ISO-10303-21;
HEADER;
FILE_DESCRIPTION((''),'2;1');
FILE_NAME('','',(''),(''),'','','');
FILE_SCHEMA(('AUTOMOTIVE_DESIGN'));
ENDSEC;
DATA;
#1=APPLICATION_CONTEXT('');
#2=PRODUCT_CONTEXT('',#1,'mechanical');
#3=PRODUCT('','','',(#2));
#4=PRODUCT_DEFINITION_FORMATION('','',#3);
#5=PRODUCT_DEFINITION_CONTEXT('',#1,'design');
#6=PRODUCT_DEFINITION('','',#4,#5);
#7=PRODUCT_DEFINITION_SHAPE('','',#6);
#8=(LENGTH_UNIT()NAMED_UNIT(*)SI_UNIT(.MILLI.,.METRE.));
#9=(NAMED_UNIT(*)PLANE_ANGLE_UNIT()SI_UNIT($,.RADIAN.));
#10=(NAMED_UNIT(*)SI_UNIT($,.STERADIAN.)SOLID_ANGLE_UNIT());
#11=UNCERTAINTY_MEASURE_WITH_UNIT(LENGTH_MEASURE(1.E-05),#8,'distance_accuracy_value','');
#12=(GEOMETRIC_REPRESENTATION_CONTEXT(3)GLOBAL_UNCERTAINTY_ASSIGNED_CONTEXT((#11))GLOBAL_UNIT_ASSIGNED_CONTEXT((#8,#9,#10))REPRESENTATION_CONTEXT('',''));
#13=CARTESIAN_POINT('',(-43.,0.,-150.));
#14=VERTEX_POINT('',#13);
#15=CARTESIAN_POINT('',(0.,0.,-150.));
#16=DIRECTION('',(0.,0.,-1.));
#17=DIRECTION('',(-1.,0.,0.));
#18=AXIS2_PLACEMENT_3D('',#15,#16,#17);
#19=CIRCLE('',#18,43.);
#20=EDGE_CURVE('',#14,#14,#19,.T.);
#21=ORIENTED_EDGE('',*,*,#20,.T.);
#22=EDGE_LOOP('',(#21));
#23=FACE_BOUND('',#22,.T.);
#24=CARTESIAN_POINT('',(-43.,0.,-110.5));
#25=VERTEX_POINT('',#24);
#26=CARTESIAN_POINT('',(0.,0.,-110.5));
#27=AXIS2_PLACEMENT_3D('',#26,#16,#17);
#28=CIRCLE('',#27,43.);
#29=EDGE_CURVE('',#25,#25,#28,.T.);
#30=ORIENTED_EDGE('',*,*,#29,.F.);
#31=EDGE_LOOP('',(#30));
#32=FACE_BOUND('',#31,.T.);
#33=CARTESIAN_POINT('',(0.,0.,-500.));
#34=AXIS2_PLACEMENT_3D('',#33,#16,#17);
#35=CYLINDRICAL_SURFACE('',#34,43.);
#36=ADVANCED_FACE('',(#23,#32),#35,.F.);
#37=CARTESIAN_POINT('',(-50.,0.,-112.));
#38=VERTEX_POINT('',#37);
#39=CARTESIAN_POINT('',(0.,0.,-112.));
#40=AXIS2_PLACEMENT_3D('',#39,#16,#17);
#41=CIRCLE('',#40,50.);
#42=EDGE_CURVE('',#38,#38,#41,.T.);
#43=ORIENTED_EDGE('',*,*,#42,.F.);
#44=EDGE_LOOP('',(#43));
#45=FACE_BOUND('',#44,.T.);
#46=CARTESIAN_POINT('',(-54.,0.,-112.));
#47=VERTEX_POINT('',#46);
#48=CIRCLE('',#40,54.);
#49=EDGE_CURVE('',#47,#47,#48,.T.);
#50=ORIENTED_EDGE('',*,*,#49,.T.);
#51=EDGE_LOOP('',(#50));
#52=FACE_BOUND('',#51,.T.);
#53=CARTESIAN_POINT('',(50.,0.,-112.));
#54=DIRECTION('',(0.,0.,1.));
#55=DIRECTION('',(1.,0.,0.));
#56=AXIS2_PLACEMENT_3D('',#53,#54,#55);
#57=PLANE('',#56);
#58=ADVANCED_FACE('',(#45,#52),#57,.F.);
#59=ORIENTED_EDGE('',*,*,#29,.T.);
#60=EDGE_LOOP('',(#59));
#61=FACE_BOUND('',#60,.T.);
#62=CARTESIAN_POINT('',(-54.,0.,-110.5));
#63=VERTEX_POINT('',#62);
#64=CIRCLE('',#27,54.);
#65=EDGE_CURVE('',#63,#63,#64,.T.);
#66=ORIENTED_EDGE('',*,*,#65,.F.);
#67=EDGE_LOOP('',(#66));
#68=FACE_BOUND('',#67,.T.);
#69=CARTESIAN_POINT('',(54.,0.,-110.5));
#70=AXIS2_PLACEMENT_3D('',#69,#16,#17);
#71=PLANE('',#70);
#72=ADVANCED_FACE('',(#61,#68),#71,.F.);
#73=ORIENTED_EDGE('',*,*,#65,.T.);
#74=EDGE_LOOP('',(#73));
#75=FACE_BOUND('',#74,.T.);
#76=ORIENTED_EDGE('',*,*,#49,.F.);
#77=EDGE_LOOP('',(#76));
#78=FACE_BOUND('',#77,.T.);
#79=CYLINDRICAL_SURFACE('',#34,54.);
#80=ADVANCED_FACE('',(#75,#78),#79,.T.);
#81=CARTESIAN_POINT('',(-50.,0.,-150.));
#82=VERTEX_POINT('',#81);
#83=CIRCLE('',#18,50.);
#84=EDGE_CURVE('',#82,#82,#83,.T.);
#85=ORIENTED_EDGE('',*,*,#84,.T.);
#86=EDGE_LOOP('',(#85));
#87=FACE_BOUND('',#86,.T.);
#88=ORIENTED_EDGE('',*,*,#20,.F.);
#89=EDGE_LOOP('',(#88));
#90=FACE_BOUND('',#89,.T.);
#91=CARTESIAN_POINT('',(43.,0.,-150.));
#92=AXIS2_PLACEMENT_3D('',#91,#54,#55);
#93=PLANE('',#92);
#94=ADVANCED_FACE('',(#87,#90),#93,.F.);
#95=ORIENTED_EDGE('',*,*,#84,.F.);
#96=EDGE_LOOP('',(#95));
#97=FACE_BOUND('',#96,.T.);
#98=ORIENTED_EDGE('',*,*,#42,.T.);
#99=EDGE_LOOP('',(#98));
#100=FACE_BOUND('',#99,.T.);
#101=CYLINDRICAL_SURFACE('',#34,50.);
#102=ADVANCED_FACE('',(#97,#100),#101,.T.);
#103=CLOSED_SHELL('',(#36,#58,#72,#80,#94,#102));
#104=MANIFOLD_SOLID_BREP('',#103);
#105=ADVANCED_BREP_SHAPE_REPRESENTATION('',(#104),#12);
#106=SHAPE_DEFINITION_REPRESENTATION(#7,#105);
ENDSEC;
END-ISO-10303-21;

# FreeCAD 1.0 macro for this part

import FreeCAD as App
import Part
import Sketcher

V = App.Vector
Q = App.Units.Quantity


def add_polygon(sketch, points):
    """Adds a closed chain of lines whose ends are joined by coincident constraints."""
    first, n = sketch.GeometryCount, len(points)
    for a, b in zip(points, points[1:] + points[:1]):
        sketch.addGeometry(Part.LineSegment(App.Vector(*a, 0), App.Vector(*b, 0)), False)
    for i in range(n):
        sketch.addConstraint(Sketcher.Constraint("Coincident", first + i, 2, first + (i + 1) % n, 1))

doc = App.newDocument("Part")
params = doc.addObject("Spreadsheet::Sheet", "Params")
for row, (alias, value) in enumerate([
    ("sketch1_width", "7 mm"),
    ("sketch1_width2", "11 mm"),
    ("sketch1_height", "38 mm"),
    ("sketch1_height2", "39.5 mm"),
    ("revolution_angle", "360 deg"),
], start=1):
    params.set(f"A{row}", alias)
    params.set(f"B{row}", "=" + value)
    params.setAlias(f"B{row}", alias)

body = doc.addObject("PartDesign::Body", "Body")

sketch1 = doc.addObject("Sketcher::SketchObject", "Sketch")
body.addObject(sketch1)
sketch1.AttachmentSupport = (doc.XZ_Plane, [""])
sketch1.MapMode = "FlatFace"
add_polygon(sketch1, [(50, -150), (43, -150), (43, -110.5), (54, -110.5), (54, -112), (50, -112)])
sketch1.addConstraint([
    Sketcher.Constraint("Horizontal", 0),
    Sketcher.Constraint("Vertical", 1),
    Sketcher.Constraint("Horizontal", 2),
    Sketcher.Constraint("Vertical", 3),
    Sketcher.Constraint("Horizontal", 4),
    Sketcher.Constraint("Vertical", 5),
    Sketcher.Constraint("DistanceX", 0, 2, 0, 1, Q("7 mm")),
    Sketcher.Constraint("DistanceX", 2, 1, 2, 2, Q("11 mm")),
    Sketcher.Constraint("DistanceY", 5, 2, 5, 1, Q("38 mm")),
    Sketcher.Constraint("DistanceY", 1, 1, 1, 2, Q("39.5 mm")),
    Sketcher.Constraint("DistanceX", -1, 1, 0, 2, Q("43 mm")),
    Sketcher.Constraint("DistanceY", 0, 2, -1, 1, Q("150 mm")),
])
sketch1.setExpression("Constraints[12]", "Params.sketch1_width")
sketch1.setExpression("Constraints[13]", "Params.sketch1_width2")
sketch1.setExpression("Constraints[14]", "Params.sketch1_height")
sketch1.setExpression("Constraints[15]", "Params.sketch1_height2")
revolution = doc.addObject("PartDesign::Revolution", "Revolution")
body.addObject(revolution)
revolution.Profile = sketch1
revolution.ReferenceAxis = (sketch1, ["V_Axis"])
revolution.setExpression("Angle", "Params.revolution_angle")

doc.recompute()
